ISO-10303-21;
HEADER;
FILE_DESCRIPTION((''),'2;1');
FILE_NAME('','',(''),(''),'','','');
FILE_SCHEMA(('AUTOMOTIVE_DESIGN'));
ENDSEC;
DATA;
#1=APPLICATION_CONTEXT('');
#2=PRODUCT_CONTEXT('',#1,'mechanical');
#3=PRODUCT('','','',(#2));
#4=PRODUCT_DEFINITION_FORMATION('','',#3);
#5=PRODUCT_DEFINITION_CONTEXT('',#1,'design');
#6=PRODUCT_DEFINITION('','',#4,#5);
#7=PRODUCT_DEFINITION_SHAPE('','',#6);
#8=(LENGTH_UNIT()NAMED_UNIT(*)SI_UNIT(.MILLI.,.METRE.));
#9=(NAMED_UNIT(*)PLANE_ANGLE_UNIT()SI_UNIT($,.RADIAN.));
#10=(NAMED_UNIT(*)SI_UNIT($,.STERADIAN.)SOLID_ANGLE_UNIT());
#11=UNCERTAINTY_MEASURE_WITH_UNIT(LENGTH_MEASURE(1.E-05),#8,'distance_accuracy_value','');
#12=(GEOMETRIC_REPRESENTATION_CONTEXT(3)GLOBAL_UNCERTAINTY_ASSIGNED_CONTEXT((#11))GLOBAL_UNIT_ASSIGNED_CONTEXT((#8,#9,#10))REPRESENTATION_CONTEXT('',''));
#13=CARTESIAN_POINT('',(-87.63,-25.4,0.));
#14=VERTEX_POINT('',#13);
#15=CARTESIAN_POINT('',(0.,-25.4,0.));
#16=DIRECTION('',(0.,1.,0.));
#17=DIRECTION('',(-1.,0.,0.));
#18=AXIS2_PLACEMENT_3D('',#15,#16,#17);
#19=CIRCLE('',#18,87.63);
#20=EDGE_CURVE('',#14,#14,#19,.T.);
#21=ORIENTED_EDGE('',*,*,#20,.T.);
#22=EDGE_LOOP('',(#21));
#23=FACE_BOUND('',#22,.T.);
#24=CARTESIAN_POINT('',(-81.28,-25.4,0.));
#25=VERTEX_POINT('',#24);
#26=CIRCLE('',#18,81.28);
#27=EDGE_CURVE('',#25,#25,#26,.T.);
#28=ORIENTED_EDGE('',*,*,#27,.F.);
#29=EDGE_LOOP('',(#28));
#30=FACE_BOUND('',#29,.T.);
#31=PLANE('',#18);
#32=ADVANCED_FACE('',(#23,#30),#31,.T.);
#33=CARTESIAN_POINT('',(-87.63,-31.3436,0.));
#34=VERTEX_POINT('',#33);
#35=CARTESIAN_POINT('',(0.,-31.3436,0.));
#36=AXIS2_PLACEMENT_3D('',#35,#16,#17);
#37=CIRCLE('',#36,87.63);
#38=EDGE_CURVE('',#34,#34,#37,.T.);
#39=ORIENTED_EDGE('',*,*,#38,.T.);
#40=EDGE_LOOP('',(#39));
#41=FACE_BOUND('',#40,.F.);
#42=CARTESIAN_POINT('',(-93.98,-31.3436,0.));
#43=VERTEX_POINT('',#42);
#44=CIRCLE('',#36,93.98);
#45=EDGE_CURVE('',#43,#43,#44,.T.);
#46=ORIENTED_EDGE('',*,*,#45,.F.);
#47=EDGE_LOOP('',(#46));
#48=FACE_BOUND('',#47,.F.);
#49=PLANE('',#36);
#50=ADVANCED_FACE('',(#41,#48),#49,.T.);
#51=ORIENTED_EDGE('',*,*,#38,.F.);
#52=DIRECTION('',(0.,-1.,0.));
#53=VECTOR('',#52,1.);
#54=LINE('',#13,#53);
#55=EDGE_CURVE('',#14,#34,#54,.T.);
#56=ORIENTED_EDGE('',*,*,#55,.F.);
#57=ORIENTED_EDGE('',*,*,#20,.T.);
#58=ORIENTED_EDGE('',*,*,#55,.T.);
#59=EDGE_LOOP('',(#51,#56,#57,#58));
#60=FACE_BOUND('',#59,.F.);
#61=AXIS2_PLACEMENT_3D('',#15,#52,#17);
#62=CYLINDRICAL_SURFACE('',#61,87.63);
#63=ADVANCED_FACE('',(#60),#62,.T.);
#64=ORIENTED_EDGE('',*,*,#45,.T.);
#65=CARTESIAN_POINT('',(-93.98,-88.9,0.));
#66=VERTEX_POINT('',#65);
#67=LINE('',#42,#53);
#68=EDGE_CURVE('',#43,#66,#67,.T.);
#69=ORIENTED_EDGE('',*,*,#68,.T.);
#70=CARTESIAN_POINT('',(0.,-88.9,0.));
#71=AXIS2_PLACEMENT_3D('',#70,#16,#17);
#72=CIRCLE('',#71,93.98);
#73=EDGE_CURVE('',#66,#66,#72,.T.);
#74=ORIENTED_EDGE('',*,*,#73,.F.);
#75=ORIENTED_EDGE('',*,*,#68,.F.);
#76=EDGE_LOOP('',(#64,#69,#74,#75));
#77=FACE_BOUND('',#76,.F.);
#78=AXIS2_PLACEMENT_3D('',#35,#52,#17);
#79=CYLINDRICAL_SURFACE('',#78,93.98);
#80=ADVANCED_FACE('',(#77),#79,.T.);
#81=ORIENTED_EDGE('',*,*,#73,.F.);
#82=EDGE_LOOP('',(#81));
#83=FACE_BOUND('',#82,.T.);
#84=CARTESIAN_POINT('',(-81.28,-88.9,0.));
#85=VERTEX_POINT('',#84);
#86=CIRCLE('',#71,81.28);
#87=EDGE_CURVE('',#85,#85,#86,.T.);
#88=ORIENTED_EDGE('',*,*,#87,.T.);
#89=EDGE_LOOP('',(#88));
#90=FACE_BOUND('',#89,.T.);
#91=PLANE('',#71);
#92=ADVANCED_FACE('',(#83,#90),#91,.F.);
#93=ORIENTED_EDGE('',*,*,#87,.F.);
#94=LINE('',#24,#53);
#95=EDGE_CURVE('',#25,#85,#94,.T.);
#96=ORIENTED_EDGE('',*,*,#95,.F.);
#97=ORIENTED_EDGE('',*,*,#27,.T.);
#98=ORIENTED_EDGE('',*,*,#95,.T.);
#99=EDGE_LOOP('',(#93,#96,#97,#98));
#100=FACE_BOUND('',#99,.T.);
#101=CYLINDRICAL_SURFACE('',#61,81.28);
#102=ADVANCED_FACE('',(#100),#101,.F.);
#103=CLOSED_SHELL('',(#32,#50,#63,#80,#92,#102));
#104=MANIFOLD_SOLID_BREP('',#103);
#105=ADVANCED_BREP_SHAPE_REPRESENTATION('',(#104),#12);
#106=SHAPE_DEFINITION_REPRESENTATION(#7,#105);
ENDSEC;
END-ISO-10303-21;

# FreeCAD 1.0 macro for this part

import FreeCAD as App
import Part
import Sketcher

V = App.Vector
Q = App.Units.Quantity

doc = App.newDocument("Part")
body = doc.addObject("PartDesign::Body", "Body")

# Sketch on XY plane
sketch1 = doc.addObject("Sketcher::SketchObject", "Sketch")
body.addObject(sketch1)
sketch1.AttachmentSupport = (doc.XY_Plane, [""])
sketch1.MapMode = "FlatFace"
sketch1.addGeometry([
    Part.LineSegment(V(-81.28, -25.4, 0), V(-87.63, -25.4, 0)),  # 0
    Part.LineSegment(V(-87.63, -25.4, 0), V(-87.63, -31.3436, 0)),  # 1
    Part.LineSegment(V(-87.63, -31.3436, 0), V(-93.98, -31.3436, 0)),  # 2
    Part.LineSegment(V(-93.98, -31.3436, 0), V(-93.98, -88.9, 0)),  # 3
    Part.LineSegment(V(-93.98, -88.9, 0), V(-81.28, -88.9, 0)),  # 4
    Part.LineSegment(V(-81.28, -88.9, 0), V(-81.28, -25.4, 0)),  # 5
], False)
sketch1.addConstraint([
    Sketcher.Constraint("Coincident", 0, 2, 1, 1),
    Sketcher.Constraint("Coincident", 1, 2, 2, 1),
    Sketcher.Constraint("Coincident", 2, 2, 3, 1),
    Sketcher.Constraint("Coincident", 3, 2, 4, 1),
    Sketcher.Constraint("Coincident", 4, 2, 5, 1),
    Sketcher.Constraint("Coincident", 5, 2, 0, 1),
    Sketcher.Constraint("Horizontal", 0),
    Sketcher.Constraint("Vertical", 1),
    Sketcher.Constraint("Horizontal", 2),
    Sketcher.Constraint("Vertical", 3),
    Sketcher.Constraint("Horizontal", 4),
    Sketcher.Constraint("Vertical", 5),
    Sketcher.Constraint("Equal", 0, 2),
    Sketcher.Constraint("DistanceX", 4, 1, 4, 2, Q("0.5 in")),
    Sketcher.Constraint("DistanceY", 5, 1, 5, 2, Q("2.5 in")),
    Sketcher.Constraint("DistanceY", 0, 2, -1, 1, Q("1 in")),
    Sketcher.Constraint("DistanceX", 2, 2, -1, 1, Q("3.7 in")),
    Sketcher.Constraint("DistanceY", 1, 2, 1, 1, Q("0.234 in")),
])
revolution = doc.addObject("PartDesign::Revolution", "Revolution")
body.addObject(revolution)
revolution.Profile = sketch1
revolution.ReferenceAxis = (sketch1, ["V_Axis"])
revolution.Angle = 360

doc.recompute()
